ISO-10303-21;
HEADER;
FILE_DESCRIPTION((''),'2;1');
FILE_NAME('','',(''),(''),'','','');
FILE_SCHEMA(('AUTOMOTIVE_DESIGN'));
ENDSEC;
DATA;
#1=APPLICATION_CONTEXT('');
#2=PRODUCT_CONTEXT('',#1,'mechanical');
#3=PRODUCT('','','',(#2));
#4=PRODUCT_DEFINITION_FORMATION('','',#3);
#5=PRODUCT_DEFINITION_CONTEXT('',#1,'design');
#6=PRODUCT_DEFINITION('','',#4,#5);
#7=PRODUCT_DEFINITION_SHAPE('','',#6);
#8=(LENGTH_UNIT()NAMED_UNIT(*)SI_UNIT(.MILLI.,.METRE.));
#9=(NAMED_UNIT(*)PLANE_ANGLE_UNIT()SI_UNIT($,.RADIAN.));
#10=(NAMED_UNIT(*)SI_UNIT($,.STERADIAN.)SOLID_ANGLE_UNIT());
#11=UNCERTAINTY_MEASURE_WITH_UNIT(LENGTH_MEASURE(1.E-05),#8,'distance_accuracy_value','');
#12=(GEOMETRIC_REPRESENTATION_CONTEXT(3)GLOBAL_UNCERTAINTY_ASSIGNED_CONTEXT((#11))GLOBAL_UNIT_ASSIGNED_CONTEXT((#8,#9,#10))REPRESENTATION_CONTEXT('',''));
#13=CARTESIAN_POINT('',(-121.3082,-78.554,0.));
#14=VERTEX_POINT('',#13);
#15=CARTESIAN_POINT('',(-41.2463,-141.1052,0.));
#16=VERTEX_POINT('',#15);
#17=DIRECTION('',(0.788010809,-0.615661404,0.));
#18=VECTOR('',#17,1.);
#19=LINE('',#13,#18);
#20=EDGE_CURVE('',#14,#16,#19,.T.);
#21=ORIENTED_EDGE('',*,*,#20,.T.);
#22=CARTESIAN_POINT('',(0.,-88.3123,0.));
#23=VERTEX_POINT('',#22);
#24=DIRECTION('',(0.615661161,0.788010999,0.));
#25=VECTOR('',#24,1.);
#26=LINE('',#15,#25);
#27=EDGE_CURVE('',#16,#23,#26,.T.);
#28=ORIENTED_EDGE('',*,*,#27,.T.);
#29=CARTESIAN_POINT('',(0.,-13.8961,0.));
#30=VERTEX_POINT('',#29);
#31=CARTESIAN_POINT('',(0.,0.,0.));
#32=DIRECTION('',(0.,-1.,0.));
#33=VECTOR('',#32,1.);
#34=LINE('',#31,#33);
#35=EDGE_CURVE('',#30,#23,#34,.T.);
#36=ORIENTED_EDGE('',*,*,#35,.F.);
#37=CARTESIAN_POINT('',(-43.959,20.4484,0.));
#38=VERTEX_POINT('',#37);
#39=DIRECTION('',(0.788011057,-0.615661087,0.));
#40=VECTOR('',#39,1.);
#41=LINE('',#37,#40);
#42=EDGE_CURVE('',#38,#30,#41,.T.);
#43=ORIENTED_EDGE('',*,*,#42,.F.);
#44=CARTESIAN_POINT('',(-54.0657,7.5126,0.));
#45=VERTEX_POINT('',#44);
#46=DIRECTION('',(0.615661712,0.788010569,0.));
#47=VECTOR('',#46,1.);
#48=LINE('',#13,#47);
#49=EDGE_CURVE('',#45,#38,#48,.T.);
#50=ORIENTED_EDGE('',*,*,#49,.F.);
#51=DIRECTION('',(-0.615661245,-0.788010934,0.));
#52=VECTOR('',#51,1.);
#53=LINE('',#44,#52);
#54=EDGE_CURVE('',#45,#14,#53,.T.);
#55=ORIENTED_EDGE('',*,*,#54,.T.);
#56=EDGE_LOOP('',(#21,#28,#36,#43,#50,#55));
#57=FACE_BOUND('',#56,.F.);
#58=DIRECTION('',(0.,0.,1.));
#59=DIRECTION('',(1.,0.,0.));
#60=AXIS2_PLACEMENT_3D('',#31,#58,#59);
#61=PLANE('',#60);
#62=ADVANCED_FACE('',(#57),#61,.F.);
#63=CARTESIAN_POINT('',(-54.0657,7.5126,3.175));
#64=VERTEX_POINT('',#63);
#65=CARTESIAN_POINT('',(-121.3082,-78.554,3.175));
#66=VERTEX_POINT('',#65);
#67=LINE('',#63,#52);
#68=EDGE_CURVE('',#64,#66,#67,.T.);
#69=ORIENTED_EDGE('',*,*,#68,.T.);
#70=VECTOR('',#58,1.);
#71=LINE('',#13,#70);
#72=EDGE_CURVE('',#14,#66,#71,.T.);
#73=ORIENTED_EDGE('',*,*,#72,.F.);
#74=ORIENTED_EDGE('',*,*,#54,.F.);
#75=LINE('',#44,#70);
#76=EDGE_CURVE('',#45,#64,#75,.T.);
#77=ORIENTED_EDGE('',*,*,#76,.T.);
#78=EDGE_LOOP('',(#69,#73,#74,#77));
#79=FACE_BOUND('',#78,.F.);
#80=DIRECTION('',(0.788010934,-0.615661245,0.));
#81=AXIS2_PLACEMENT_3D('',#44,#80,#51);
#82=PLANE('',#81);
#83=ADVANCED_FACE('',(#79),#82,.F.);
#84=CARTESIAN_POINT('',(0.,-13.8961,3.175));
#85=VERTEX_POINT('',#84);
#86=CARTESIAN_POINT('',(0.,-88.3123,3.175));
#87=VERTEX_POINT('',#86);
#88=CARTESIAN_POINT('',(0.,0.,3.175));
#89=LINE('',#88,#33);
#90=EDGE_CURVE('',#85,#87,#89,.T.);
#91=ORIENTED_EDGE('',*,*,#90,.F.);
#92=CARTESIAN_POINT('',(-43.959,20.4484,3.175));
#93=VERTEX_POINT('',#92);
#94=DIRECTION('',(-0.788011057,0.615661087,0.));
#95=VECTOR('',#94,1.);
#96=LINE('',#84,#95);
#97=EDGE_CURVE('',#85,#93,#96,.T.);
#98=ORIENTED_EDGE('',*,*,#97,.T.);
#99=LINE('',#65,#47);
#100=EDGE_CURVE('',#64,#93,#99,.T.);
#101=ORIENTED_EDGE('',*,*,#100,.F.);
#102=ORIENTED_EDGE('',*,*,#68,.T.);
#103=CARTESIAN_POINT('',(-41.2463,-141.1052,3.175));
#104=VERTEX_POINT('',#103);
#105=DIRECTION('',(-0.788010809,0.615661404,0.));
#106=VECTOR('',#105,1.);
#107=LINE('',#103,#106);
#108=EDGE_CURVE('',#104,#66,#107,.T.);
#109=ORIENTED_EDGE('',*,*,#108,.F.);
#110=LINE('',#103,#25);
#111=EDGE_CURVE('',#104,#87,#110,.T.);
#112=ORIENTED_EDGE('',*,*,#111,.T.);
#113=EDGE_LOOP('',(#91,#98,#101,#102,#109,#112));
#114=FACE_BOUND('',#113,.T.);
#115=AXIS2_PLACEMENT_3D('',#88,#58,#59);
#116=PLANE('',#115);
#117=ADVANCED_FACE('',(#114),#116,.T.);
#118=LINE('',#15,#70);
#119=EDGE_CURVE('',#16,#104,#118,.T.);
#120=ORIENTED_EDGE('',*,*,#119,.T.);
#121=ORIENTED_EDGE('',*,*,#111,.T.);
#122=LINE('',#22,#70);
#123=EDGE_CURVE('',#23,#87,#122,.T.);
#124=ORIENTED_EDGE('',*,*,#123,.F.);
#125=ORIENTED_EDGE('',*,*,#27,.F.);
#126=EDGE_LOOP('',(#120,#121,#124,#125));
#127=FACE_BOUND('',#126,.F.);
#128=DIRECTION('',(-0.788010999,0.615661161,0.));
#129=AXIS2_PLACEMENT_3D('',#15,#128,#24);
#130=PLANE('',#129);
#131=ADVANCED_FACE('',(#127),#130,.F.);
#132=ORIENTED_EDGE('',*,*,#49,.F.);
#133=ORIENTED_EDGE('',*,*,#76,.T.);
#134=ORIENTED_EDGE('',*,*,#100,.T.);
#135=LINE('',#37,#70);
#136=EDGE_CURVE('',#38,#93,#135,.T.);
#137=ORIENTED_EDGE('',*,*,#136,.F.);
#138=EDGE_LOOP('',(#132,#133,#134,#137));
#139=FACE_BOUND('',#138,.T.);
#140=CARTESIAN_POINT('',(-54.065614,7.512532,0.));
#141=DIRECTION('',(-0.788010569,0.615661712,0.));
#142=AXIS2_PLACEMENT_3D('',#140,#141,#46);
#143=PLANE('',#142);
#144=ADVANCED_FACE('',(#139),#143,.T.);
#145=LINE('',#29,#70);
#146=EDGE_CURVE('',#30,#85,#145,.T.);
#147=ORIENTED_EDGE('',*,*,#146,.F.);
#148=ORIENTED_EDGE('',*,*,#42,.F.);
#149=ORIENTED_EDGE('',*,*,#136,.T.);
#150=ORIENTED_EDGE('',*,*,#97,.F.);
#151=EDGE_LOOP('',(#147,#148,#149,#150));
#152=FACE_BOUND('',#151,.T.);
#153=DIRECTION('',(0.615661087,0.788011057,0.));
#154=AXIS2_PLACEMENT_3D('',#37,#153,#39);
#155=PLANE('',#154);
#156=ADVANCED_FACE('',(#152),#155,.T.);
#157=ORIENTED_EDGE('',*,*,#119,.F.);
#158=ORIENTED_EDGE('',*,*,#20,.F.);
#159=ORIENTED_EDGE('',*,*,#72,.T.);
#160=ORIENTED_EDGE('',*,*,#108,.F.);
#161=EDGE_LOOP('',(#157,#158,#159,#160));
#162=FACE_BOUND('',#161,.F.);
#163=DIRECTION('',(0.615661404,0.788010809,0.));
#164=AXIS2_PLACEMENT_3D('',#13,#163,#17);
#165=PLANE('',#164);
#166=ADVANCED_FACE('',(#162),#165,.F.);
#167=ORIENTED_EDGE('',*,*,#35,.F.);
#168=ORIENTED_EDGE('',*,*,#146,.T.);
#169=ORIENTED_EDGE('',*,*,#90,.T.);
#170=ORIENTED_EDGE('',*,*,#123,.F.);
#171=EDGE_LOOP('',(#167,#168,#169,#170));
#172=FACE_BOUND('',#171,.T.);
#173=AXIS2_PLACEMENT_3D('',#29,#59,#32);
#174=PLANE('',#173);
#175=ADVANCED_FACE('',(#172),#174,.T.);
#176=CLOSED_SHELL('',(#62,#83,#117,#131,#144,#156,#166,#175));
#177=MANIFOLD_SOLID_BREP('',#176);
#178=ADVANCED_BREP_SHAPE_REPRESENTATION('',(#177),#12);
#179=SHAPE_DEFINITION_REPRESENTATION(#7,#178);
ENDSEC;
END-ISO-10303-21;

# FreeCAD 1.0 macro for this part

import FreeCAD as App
import Part
import Sketcher
Q = App.Units.Quantity

doc = App.newDocument("Part")
body = doc.addObject("PartDesign::Body", "Body")

sketch1 = body.newObject("Sketcher::SketchObject", "Sketch")
sketch1.AttachmentSupport = (doc.getObject("XY_Plane"), [""])
sketch1.MapMode = "FlatFace"
sketch1.addGeometry([
    Part.LineSegment(App.Vector(-121.3082, -78.554, 0), App.Vector(-41.2463, -141.1052, 0)),
    Part.LineSegment(App.Vector(-41.2463, -141.1052, 0), App.Vector(0, -88.3123, 0)),
    Part.LineSegment(App.Vector(0, -88.3123, 0), App.Vector(0, -13.8961, 0)),
    Part.LineSegment(App.Vector(0, -13.8961, 0), App.Vector(-43.959, 20.4484, 0)),
    Part.LineSegment(App.Vector(-43.959, 20.4484, 0), App.Vector(-54.065614, 7.512532, 0)),
    Part.LineSegment(App.Vector(-54.0657, 7.5126, 0), App.Vector(-121.308235, -78.553972, 0)),
], False)
sketch1.addConstraint([
    Sketcher.Constraint("Coincident", 0, 2, 1, 1),
    Sketcher.Constraint("Coincident", 1, 2, 2, 1),
    Sketcher.Constraint("Coincident", 2, 2, 3, 1),
    Sketcher.Constraint("Coincident", 3, 2, 4, 1),
    Sketcher.Constraint("Coincident", 4, 2, 5, 1),
    Sketcher.Constraint("Coincident", 5, 2, 0, 1),
    Sketcher.Constraint("Vertical", 2),
    Sketcher.Constraint("PointOnObject", 1, 2, -2),
    Sketcher.Constraint("Perpendicular", 0, 1),
    Sketcher.Constraint("Perpendicular", 1, 3),
    Sketcher.Constraint("Perpendicular", 3, 4),
    Sketcher.Constraint("Parallel", 4, 5),
    Sketcher.Constraint("Distance", 0, Q("4 in")),
    Sketcher.Constraint("Angle", 0, Q("-38 deg")),
    Sketcher.Constraint("Distance", 5, Q("4.3 in")),
    Sketcher.Constraint("Distance", 1, Q("2.6376 in")),
    Sketcher.Constraint("Distance", 4, Q("0.6463 in")),
    Sketcher.Constraint("DistanceY", 2, 2, -1, 1, Q("0.5471 in")),
])
pad1 = body.newObject("PartDesign::Pad", "Pad")
pad1.Profile = sketch1
pad1.Length = Q("0.125 in")

doc.recompute()
